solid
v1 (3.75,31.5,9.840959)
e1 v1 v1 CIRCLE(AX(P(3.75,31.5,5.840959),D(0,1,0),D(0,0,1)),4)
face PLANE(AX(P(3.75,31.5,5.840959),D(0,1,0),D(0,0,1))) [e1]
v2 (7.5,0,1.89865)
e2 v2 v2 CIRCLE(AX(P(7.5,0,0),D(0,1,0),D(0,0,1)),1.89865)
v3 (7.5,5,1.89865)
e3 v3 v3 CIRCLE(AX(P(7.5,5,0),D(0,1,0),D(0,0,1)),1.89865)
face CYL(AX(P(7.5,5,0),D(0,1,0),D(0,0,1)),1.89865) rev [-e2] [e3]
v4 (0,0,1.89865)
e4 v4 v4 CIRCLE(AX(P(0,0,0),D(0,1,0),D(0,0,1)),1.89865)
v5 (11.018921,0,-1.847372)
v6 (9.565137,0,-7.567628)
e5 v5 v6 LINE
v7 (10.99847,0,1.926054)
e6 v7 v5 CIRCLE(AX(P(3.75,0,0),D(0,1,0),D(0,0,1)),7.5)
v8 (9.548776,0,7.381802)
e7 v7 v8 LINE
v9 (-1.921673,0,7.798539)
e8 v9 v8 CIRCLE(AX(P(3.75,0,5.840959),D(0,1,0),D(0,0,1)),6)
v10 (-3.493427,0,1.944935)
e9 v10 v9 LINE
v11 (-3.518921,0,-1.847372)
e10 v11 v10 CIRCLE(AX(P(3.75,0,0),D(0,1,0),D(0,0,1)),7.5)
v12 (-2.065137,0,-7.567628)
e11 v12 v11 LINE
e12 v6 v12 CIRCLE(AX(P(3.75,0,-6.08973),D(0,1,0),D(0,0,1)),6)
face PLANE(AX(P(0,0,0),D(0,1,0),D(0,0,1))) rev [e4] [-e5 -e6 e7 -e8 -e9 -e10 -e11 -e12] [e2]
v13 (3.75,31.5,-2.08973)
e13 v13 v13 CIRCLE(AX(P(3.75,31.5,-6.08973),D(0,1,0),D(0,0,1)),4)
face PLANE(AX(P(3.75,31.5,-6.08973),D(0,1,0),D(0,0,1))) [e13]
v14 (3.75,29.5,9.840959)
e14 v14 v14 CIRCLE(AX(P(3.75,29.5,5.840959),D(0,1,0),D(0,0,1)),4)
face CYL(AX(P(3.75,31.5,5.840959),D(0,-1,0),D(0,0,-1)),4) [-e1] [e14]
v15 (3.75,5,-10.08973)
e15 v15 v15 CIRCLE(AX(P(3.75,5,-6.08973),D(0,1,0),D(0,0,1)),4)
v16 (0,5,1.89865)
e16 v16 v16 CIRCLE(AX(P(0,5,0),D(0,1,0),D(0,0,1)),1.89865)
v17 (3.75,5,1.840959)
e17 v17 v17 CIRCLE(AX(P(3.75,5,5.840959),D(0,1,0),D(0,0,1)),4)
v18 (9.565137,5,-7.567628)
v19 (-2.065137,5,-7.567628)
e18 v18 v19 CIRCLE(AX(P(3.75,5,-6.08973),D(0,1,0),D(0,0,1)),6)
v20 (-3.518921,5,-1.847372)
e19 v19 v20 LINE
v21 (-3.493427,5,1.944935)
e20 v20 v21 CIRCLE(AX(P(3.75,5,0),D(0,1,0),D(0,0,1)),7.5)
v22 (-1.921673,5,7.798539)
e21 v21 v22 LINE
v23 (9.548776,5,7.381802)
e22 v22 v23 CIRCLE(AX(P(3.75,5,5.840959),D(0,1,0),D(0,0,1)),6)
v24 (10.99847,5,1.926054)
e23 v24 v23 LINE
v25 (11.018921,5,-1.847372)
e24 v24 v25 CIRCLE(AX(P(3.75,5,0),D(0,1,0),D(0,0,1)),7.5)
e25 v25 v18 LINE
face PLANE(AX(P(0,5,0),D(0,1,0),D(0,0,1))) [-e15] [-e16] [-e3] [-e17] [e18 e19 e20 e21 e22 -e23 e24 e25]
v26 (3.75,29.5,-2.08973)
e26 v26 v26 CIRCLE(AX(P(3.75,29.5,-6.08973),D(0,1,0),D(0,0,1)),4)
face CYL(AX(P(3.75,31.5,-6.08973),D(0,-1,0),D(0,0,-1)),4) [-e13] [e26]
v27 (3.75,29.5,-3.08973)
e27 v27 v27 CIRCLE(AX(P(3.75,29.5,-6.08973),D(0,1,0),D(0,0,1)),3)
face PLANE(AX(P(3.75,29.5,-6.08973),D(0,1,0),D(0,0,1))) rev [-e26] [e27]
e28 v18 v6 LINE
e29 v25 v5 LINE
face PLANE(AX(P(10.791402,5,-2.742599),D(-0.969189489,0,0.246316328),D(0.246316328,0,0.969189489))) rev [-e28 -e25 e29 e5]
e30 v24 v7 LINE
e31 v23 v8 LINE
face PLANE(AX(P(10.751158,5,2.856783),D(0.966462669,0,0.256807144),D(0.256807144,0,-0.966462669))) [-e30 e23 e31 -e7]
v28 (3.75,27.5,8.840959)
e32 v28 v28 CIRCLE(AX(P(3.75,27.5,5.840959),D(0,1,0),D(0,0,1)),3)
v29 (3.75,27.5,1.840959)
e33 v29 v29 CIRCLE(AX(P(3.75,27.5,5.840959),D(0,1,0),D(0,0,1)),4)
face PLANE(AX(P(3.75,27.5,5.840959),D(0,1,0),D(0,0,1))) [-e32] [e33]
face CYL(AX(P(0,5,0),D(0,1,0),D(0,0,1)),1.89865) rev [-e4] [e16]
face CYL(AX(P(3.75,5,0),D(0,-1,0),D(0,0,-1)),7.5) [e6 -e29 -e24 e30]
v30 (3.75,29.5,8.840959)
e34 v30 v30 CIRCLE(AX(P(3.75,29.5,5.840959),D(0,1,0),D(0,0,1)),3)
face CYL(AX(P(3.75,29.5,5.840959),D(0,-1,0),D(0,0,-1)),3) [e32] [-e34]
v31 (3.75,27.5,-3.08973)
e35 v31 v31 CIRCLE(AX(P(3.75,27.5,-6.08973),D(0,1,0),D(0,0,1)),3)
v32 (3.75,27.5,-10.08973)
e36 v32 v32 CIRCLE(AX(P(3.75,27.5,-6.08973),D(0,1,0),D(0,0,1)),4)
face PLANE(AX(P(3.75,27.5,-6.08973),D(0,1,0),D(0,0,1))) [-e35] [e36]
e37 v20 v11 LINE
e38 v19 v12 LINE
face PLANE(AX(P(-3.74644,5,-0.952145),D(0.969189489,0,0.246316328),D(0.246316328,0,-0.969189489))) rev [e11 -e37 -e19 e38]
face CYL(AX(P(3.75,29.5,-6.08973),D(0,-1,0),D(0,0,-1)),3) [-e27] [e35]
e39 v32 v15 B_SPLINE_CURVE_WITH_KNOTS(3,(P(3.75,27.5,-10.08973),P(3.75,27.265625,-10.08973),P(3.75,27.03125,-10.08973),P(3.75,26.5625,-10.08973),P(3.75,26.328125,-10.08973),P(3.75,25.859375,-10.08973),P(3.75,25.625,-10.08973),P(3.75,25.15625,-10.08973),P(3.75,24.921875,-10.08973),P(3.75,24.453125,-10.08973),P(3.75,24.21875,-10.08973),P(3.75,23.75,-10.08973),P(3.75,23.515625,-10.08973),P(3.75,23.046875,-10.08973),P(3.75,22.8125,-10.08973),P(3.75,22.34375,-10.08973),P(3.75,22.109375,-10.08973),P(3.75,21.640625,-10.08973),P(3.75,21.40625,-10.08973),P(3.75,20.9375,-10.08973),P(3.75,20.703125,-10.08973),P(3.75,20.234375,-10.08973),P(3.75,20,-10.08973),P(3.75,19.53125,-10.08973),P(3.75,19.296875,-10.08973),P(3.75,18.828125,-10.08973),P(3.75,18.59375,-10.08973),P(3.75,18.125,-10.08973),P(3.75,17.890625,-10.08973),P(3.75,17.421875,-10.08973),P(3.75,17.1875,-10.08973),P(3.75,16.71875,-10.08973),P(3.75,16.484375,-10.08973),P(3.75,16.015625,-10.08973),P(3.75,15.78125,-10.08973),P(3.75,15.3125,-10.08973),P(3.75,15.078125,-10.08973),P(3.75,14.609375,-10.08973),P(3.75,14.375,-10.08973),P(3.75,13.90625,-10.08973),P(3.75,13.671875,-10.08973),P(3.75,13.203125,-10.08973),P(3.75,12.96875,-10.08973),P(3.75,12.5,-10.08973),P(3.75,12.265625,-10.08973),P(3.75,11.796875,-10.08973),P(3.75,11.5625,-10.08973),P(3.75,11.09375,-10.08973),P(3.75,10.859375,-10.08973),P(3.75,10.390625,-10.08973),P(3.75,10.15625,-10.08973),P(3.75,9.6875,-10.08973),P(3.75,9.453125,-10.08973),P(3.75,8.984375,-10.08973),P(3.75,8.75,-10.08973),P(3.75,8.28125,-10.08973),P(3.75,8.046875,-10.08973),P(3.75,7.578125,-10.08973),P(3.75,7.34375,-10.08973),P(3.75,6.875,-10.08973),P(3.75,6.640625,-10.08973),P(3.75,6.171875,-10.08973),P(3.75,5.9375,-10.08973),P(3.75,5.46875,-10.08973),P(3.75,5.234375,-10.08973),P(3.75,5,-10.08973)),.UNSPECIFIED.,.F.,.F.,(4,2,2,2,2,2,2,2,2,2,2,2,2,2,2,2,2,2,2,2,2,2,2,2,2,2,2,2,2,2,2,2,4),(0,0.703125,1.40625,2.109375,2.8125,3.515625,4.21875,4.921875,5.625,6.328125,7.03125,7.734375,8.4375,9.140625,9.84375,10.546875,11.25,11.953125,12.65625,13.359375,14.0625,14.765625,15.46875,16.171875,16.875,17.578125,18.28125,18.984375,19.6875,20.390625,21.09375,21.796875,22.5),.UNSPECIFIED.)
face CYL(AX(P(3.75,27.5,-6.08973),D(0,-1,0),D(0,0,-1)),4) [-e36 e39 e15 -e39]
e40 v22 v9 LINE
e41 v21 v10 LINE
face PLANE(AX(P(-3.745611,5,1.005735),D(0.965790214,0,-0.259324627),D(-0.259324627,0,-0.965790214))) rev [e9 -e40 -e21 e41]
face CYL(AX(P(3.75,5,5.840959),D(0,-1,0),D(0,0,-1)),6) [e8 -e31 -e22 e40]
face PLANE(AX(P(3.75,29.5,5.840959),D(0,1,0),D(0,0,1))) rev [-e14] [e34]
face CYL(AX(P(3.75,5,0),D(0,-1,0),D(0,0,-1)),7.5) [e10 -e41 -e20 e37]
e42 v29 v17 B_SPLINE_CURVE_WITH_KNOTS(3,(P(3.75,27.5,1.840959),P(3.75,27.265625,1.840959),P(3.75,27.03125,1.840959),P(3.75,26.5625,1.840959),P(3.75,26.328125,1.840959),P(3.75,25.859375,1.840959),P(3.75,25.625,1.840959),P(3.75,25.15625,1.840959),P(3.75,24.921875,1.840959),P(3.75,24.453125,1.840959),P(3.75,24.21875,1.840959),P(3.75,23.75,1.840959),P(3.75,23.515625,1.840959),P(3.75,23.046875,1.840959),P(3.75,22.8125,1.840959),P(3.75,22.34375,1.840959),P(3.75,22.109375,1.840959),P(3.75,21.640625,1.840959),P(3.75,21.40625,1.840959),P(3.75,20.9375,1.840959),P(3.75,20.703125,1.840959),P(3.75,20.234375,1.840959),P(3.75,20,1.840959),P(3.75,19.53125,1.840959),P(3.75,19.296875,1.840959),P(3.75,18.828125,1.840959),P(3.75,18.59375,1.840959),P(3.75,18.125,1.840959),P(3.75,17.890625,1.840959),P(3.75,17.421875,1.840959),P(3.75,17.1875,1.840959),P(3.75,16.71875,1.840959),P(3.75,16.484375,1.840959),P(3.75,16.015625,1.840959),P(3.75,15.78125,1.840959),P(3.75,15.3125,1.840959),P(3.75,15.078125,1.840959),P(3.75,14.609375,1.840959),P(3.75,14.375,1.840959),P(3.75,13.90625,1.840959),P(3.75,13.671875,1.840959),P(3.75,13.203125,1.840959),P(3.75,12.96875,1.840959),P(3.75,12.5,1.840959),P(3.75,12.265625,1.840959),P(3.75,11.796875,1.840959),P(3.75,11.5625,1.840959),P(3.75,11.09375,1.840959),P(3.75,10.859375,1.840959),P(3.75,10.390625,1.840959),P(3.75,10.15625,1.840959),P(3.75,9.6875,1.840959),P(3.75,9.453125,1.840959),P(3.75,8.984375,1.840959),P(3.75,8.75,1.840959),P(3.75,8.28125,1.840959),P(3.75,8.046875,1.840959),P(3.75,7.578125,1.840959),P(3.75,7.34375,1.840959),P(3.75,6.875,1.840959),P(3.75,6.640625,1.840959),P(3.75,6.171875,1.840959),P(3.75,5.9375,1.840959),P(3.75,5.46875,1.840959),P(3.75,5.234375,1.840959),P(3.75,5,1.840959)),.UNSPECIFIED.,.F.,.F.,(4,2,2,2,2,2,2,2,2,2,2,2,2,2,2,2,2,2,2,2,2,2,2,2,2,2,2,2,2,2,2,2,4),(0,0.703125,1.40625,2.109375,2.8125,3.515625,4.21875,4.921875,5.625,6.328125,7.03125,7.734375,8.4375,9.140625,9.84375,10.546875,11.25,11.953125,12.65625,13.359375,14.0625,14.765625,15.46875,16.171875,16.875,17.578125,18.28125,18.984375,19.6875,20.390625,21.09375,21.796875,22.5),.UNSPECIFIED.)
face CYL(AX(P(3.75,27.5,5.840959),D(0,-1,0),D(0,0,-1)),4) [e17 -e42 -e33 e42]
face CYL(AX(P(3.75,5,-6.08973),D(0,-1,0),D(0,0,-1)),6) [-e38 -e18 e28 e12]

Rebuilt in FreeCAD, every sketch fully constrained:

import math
import FreeCAD as App
import Part
import Sketcher
Q = App.Units.Quantity

doc = App.newDocument("Part")
body = doc.addObject("PartDesign::Body", "Body")

sketch1 = doc.addObject("Sketcher::SketchObject", "Sketch")
body.addObject(sketch1)
sketch1.AttachmentSupport = (doc.XZ_Plane, [""])
sketch1.MapMode = "FlatFace"
sketch1.addGeometry(Part.ArcOfCircle(Part.Circle(App.Vector(3.75, 5.840959, 0), App.Vector(0, 0, 1), 6), math.radians(14.880693), math.radians(160.957868)), False)
sketch1.addGeometry(Part.LineSegment(App.Vector(9.548776, 7.381802, 0), App.Vector(10.99847, 1.926054, 0)), False)
sketch1.addGeometry(Part.ArcOfCircle(Part.Circle(App.Vector(3.75, 0, 0), App.Vector(0, 0, 1), 7.5), math.radians(-14.259638), math.radians(14.880693)), False)
sketch1.addGeometry(Part.LineSegment(App.Vector(11.018921, -1.847372, 0), App.Vector(9.565137, -7.567628, 0)), False)
sketch1.addGeometry(Part.ArcOfCircle(Part.Circle(App.Vector(3.75, -6.08973, 0), App.Vector(0, 0, 1), 6), math.radians(-165.740362), math.radians(-14.259638)), False)
sketch1.addGeometry(Part.LineSegment(App.Vector(-2.065137, -7.567628, 0), App.Vector(-3.518921, -1.847372, 0)), False)
sketch1.addGeometry(Part.ArcOfCircle(Part.Circle(App.Vector(3.75, 0, 0), App.Vector(0, 0, 1), 7.5), math.radians(164.970008), math.radians(194.259638)), False)
sketch1.addGeometry(Part.LineSegment(App.Vector(-3.493427, 1.944935, 0), App.Vector(-1.921673, 7.798539, 0)), False)
sketch1.addConstraint(Sketcher.Constraint("Tangent", 0, 1, 1, 1))
sketch1.addConstraint(Sketcher.Constraint("Tangent", 1, 2, 2, 2))
sketch1.addConstraint(Sketcher.Constraint("Tangent", 2, 1, 3, 1))
sketch1.addConstraint(Sketcher.Constraint("Tangent", 3, 2, 4, 2))
sketch1.addConstraint(Sketcher.Constraint("Tangent", 4, 1, 5, 1))
sketch1.addConstraint(Sketcher.Constraint("Tangent", 5, 2, 6, 2))
sketch1.addConstraint(Sketcher.Constraint("Tangent", 6, 1, 7, 1))
sketch1.addConstraint(Sketcher.Constraint("Coincident", 7, 2, 0, 2))
sketch1.addConstraint(Sketcher.Constraint("Coincident", 6, 3, 2, 3))
sketch1.addConstraint(Sketcher.Constraint("Equal", 0, 4))
sketch1.addConstraint(Sketcher.Constraint("Equal", 2, 6))
sketch1.addConstraint(Sketcher.Constraint("PointOnObject", 2, 3, -1))
sketch1.addConstraint(Sketcher.Constraint("Horizontal", 3, 2, 4, 1))
sketch1.addConstraint(Sketcher.Constraint("Vertical", 0, 3, 2, 3))
sketch1.addConstraint(Sketcher.Constraint("Radius", 0, 6.0))
sketch1.addConstraint(Sketcher.Constraint("Radius", 2, 7.5))
sketch1.addConstraint(Sketcher.Constraint("Angle", 7, Q("74.970008 deg")))
sketch1.addConstraint(Sketcher.Constraint("DistanceX", -1, 1, 0, 3, 3.75))
sketch1.addConstraint(Sketcher.Constraint("DistanceY", -1, 1, 0, 1, 7.381802))
sketch1.addConstraint(Sketcher.Constraint("DistanceY", 4, 3, -1, 1, 6.08973))
pad1 = doc.addObject("PartDesign::Pad", "Pad")
body.addObject(pad1)
pad1.Profile = sketch1
pad1.Length = 5
pad1.Reversed = True

sketch2 = doc.addObject("Sketcher::SketchObject", "Sketch001")
body.addObject(sketch2)
sketch2.AttachmentSupport = (doc.XZ_Plane, [""])
sketch2.MapMode = "FlatFace"
sketch2.AttachmentOffset = App.Placement(App.Vector(0, 0, -5), App.Rotation())
sketch2.addGeometry(Part.Circle(App.Vector(3.75, 5.840959, 0), App.Vector(0, 0, 1), 4), False)
sketch2.addGeometry(Part.Circle(App.Vector(3.75, -6.08973, 0), App.Vector(0, 0, 1), 4), False)
sketch2.addConstraint(Sketcher.Constraint("Equal", 0, 1))
sketch2.addConstraint(Sketcher.Constraint("Vertical", 0, 3, 1, 3))
sketch2.addConstraint(Sketcher.Constraint("Diameter", 0, 8.0))
sketch2.addConstraint(Sketcher.Constraint("DistanceX", -1, 1, 0, 3, 3.75))
sketch2.addConstraint(Sketcher.Constraint("DistanceY", -1, 1, 0, 3, 5.840959))
sketch2.addConstraint(Sketcher.Constraint("DistanceY", 1, 3, -1, 1, 6.08973))
pad2 = doc.addObject("PartDesign::Pad", "Pad001")
body.addObject(pad2)
pad2.Profile = sketch2
pad2.Length = 22.5
pad2.Reversed = True

sketch3 = doc.addObject("Sketcher::SketchObject", "Sketch002")
body.addObject(sketch3)
sketch3.AttachmentSupport = (doc.XZ_Plane, [""])
sketch3.MapMode = "FlatFace"
sketch3.AttachmentOffset = App.Placement(App.Vector(0, 0, -27.5), App.Rotation())
sketch3.addGeometry(Part.Circle(App.Vector(3.75, 5.840959, 0), App.Vector(0, 0, 1), 3), False)
sketch3.addGeometry(Part.Circle(App.Vector(3.75, -6.08973, 0), App.Vector(0, 0, 1), 3), False)
sketch3.addConstraint(Sketcher.Constraint("Equal", 0, 1))
sketch3.addConstraint(Sketcher.Constraint("Vertical", 0, 3, 1, 3))
sketch3.addConstraint(Sketcher.Constraint("Diameter", 0, 6.0))
sketch3.addConstraint(Sketcher.Constraint("DistanceX", -1, 1, 0, 3, 3.75))
sketch3.addConstraint(Sketcher.Constraint("DistanceY", -1, 1, 0, 3, 5.840959))
sketch3.addConstraint(Sketcher.Constraint("DistanceY", 1, 3, -1, 1, 6.08973))
pad3 = doc.addObject("PartDesign::Pad", "Pad002")
body.addObject(pad3)
pad3.Profile = sketch3
pad3.Length = 2
pad3.Reversed = True

sketch4 = doc.addObject("Sketcher::SketchObject", "Sketch003")
body.addObject(sketch4)
sketch4.AttachmentSupport = (doc.XZ_Plane, [""])
sketch4.MapMode = "FlatFace"
sketch4.AttachmentOffset = App.Placement(App.Vector(0, 0, -29.5), App.Rotation())
sketch4.addGeometry(Part.Circle(App.Vector(3.75, 5.840959, 0), App.Vector(0, 0, 1), 4), False)
sketch4.addGeometry(Part.Circle(App.Vector(3.75, -6.08973, 0), App.Vector(0, 0, 1), 4), False)
sketch4.addConstraint(Sketcher.Constraint("Equal", 0, 1))
sketch4.addConstraint(Sketcher.Constraint("Vertical", 0, 3, 1, 3))
sketch4.addConstraint(Sketcher.Constraint("Diameter", 0, 8.0))
sketch4.addConstraint(Sketcher.Constraint("DistanceX", -1, 1, 0, 3, 3.75))
sketch4.addConstraint(Sketcher.Constraint("DistanceY", -1, 1, 0, 3, 5.840959))
sketch4.addConstraint(Sketcher.Constraint("DistanceY", 1, 3, -1, 1, 6.08973))
pad4 = doc.addObject("PartDesign::Pad", "Pad003")
body.addObject(pad4)
pad4.Profile = sketch4
pad4.Length = 2
pad4.Reversed = True

sketch5 = doc.addObject("Sketcher::SketchObject", "Sketch004")
body.addObject(sketch5)
sketch5.AttachmentSupport = (doc.XZ_Plane, [""])
sketch5.MapMode = "FlatFace"
sketch5.AttachmentOffset = App.Placement(App.Vector(0, 0, -5), App.Rotation())
sketch5.addGeometry(Part.Circle(App.Vector(0, 0, 0), App.Vector(0, 0, 1), 1.89865), False)
sketch5.addGeometry(Part.Circle(App.Vector(7.5, 0, 0), App.Vector(0, 0, 1), 1.89865), False)
sketch5.addConstraint(Sketcher.Constraint("Coincident", 0, 3, -1, 1))
sketch5.addConstraint(Sketcher.Constraint("Equal", 0, 1))
sketch5.addConstraint(Sketcher.Constraint("PointOnObject", 1, 3, -1))
sketch5.addConstraint(Sketcher.Constraint("Diameter", 0, 3.7973))
sketch5.addConstraint(Sketcher.Constraint("DistanceX", -1, 1, 1, 3, 7.5))
doc.recompute()
hole = doc.addObject("PartDesign::Hole", "Hole")
body.addObject(hole)
hole.Profile = sketch5
hole.ThreadType = "None"
hole.Diameter = 3.7973
hole.DepthType = "ThroughAll"
hole.Reversed = True

doc.recompute()
